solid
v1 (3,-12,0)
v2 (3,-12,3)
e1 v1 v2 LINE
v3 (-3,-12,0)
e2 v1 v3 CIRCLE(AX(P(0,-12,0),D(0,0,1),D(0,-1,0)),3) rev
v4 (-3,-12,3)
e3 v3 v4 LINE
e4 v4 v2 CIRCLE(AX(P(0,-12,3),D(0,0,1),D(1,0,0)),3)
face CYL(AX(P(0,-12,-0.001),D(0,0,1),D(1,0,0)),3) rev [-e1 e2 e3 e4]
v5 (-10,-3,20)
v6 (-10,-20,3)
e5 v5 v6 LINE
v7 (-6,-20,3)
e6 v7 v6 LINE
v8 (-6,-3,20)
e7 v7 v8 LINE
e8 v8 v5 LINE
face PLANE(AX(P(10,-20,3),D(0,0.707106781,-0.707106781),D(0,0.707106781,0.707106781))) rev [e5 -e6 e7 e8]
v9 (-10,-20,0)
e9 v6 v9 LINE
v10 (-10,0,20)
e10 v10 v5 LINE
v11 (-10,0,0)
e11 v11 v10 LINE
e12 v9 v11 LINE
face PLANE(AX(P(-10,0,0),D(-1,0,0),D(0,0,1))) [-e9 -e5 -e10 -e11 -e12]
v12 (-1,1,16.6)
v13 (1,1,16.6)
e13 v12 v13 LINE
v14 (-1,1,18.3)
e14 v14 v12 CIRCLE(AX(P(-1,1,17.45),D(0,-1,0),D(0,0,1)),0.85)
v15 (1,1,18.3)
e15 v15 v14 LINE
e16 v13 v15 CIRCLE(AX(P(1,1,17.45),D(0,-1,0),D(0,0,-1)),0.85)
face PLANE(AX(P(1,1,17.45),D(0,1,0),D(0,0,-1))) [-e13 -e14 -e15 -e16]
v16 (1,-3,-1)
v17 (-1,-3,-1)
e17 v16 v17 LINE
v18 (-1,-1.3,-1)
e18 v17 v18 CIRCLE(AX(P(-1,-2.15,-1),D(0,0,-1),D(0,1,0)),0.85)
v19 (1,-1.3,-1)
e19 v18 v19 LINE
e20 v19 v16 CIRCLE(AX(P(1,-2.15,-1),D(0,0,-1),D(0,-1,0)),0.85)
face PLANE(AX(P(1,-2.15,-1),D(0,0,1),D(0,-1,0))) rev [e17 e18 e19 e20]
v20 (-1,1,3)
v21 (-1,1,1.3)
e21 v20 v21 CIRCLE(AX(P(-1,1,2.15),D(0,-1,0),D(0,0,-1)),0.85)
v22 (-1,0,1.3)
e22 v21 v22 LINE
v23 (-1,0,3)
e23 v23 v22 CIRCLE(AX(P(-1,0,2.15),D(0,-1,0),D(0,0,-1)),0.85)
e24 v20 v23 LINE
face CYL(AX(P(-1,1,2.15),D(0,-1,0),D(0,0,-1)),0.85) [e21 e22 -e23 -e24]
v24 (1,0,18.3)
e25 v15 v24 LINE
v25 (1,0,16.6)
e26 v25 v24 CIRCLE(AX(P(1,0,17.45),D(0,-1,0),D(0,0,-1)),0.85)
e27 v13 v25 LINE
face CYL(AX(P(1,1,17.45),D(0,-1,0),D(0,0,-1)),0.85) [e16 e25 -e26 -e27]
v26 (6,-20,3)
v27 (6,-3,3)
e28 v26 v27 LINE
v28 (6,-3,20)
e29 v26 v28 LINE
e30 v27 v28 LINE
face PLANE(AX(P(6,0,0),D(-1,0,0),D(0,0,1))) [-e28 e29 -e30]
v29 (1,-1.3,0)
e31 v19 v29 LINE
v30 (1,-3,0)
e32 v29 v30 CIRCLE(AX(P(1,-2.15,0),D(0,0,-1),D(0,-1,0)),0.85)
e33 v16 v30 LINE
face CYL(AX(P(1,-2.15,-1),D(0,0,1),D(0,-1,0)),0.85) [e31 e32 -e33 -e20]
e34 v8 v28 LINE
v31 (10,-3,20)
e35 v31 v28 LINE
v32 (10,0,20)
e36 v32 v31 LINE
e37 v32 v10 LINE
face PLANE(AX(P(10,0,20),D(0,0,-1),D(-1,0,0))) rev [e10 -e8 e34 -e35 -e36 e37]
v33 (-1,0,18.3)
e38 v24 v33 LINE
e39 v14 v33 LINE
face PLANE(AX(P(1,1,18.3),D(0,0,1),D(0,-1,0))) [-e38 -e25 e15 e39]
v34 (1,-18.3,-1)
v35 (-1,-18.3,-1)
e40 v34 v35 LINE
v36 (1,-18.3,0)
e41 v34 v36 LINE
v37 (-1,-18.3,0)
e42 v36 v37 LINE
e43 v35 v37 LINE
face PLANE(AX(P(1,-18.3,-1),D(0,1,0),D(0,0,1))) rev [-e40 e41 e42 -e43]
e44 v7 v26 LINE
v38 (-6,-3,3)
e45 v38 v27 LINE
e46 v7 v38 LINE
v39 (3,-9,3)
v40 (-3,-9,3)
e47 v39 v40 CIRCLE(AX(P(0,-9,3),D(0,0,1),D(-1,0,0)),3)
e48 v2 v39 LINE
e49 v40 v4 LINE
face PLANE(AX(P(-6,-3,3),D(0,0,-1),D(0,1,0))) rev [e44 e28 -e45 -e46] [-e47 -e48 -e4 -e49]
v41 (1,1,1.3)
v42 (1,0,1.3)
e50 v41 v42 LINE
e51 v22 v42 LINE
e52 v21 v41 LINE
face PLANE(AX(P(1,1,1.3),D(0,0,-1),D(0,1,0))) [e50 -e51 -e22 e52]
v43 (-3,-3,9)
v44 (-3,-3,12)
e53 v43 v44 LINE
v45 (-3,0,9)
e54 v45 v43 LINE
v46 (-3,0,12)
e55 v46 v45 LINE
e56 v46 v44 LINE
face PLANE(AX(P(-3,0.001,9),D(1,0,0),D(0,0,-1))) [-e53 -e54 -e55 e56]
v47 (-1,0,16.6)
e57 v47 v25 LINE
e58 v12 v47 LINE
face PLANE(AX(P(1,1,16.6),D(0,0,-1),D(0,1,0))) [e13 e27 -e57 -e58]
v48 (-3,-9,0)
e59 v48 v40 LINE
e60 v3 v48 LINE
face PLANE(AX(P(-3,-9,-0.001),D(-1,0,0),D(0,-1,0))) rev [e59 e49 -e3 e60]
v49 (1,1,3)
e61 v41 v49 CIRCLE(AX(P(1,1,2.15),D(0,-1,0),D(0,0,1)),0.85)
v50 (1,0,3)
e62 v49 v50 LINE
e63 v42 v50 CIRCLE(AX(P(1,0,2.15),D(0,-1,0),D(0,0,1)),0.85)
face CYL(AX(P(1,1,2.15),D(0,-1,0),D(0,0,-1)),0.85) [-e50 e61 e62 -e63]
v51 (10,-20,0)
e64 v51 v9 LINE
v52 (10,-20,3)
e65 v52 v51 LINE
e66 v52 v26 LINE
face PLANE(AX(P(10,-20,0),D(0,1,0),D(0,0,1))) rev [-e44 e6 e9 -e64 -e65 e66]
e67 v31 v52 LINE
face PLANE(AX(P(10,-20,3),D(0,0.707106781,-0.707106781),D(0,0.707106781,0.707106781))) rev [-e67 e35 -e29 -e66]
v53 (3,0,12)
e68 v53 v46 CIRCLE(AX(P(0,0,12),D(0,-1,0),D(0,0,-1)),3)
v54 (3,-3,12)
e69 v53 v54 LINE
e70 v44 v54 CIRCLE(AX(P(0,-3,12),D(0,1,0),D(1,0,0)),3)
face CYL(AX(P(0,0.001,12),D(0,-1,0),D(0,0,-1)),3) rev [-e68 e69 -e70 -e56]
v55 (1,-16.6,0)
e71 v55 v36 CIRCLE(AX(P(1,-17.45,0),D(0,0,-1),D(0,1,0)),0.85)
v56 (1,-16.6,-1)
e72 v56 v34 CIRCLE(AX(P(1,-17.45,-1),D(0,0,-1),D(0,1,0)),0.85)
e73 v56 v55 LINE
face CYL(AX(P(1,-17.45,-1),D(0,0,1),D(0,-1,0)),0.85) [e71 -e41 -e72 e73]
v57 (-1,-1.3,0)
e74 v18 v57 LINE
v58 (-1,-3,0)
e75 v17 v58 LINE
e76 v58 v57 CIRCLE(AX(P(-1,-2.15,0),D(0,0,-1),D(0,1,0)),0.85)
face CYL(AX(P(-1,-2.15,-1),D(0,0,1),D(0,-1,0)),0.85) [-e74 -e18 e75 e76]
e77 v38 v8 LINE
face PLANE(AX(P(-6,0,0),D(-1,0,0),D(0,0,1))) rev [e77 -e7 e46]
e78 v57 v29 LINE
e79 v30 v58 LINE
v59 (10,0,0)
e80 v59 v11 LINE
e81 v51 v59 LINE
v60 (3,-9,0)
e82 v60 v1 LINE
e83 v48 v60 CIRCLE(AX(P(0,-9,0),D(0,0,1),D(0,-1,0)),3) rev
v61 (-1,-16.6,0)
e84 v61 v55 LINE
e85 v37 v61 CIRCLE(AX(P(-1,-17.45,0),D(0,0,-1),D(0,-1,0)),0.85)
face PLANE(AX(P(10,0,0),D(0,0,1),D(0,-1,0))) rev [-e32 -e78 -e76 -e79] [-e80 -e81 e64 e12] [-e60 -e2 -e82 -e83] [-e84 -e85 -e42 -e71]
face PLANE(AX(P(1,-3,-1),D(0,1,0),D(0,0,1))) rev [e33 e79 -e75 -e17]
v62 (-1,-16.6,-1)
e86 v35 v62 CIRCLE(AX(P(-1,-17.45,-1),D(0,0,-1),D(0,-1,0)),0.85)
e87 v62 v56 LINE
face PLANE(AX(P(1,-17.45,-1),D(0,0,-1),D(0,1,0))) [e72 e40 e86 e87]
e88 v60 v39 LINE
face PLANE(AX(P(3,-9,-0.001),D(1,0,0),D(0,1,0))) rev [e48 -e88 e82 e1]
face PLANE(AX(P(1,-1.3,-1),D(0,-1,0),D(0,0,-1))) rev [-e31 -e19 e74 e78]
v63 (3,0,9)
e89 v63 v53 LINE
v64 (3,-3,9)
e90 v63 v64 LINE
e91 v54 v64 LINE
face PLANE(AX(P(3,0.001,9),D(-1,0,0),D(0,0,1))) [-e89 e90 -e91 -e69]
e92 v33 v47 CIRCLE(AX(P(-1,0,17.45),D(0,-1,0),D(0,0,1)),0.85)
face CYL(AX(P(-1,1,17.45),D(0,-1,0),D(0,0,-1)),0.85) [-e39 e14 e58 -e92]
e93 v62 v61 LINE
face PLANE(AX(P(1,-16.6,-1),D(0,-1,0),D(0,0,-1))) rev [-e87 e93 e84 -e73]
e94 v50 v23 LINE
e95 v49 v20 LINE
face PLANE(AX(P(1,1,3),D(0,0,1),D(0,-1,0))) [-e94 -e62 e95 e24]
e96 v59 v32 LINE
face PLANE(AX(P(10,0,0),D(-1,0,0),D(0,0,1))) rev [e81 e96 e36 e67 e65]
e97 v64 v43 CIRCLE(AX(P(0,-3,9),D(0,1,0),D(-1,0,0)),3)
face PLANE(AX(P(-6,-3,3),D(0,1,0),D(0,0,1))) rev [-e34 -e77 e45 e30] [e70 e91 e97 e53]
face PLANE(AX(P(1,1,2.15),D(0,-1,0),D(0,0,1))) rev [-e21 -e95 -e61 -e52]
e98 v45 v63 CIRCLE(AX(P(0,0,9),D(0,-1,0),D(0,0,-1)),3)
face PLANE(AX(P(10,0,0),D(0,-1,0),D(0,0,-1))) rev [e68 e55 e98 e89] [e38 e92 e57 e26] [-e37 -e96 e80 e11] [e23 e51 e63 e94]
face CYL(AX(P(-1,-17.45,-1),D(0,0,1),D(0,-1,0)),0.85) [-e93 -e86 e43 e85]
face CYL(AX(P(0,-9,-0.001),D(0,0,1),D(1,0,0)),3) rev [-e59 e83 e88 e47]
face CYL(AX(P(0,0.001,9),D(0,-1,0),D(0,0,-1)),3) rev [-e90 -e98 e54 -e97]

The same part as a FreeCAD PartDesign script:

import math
import FreeCAD as App
import Part
import Sketcher


def add_polygon(sketch, points):
    """Adds a closed chain of lines whose ends are joined by coincident constraints."""
    first, n = sketch.GeometryCount, len(points)
    for a, b in zip(points, points[1:] + points[:1]):
        sketch.addGeometry(Part.LineSegment(App.Vector(*a, 0), App.Vector(*b, 0)), False)
    for i in range(n):
        sketch.addConstraint(Sketcher.Constraint("Coincident", first + i, 2, first + (i + 1) % n, 1))

doc = App.newDocument("Part")
body = doc.addObject("PartDesign::Body", "Body")

# Sketch on YZ plane
sketch1 = doc.addObject("Sketcher::SketchObject", "Sketch")
body.addObject(sketch1)
sketch1.AttachmentSupport = (doc.YZ_Plane, [""])
sketch1.MapMode = "FlatFace"
add_polygon(sketch1, [(0, 0), (0, 20), (-3, 20), (-20, 3), (-20, 0)])  # lines 0-4
sketch1.addConstraint([
    Sketcher.Constraint("Vertical", 0),
    Sketcher.Constraint("Horizontal", 1),
    Sketcher.Constraint("Vertical", 3),
    Sketcher.Constraint("Horizontal", 4),
    Sketcher.Constraint("Coincident", 4, 2, -1, 1),
    Sketcher.Constraint("Equal", 4, 0),
    Sketcher.Constraint("Equal", 1, 3),
    Sketcher.Constraint("DistanceX", 1, 2, 1, 1, 3.0),
    Sketcher.Constraint("DistanceX", 4, 1, 4, 2, 20.0),
])
pad1 = doc.addObject("PartDesign::Pad", "Pad")
body.addObject(pad1)
pad1.Profile = sketch1
pad1.Length = 20
pad1.Midplane = True

# Sketch on YZ plane
sketch2 = doc.addObject("Sketcher::SketchObject", "Sketch001")
body.addObject(sketch2)
sketch2.AttachmentSupport = (doc.YZ_Plane, [""])
sketch2.MapMode = "FlatFace"
add_polygon(sketch2, [(-3, 20), (-20, 20), (-20, 3), (-3, 3)])  # lines 0-3
sketch2.addConstraint([
    Sketcher.Constraint("Horizontal", 0),
    Sketcher.Constraint("Vertical", 1),
    Sketcher.Constraint("Horizontal", 2),
    Sketcher.Constraint("Vertical", 3),
    Sketcher.Constraint("Equal", 2, 1),
    Sketcher.Constraint("DistanceX", 0, 2, 0, 1, 17.0),
    Sketcher.Constraint("DistanceX", 0, 2, -1, 1, 20.0),
    Sketcher.Constraint("DistanceY", -1, 1, 0, 2, 20.0),
])
pocket1 = doc.addObject("PartDesign::Pocket", "Pocket")
body.addObject(pocket1)
pocket1.Profile = sketch2
pocket1.Length = 12
pocket1.Midplane = True

# Sketch on XY plane
sketch3 = doc.addObject("Sketcher::SketchObject", "Sketch002")
body.addObject(sketch3)
sketch3.AttachmentSupport = (doc.XY_Plane, [""])
sketch3.MapMode = "FlatFace"
sketch3.AttachmentOffset = App.Placement(App.Vector(0, 0, 3), App.Rotation())
sketch3.addGeometry([
    Part.LineSegment(App.Vector(-3, -9, 0), App.Vector(-3, -12, 0)),
    Part.ArcOfCircle(Part.Circle(App.Vector(0, -12, 0), App.Vector(0, 0, 1), 3), math.radians(180), math.radians(360)),
    Part.LineSegment(App.Vector(3, -12, 0), App.Vector(3, -9, 0)),
    Part.ArcOfCircle(Part.Circle(App.Vector(0, -9, 0), App.Vector(0, 0, 1), 3), math.radians(0), math.radians(180)),
], False)
sketch3.addConstraint([
    Sketcher.Constraint("Tangent", 0, 2, 1, 1),
    Sketcher.Constraint("Tangent", 1, 2, 2, 1),
    Sketcher.Constraint("Tangent", 2, 2, 3, 1),
    Sketcher.Constraint("Tangent", 3, 2, 0, 1),
    Sketcher.Constraint("Vertical", 0),
    Sketcher.Constraint("Vertical", 2),
    Sketcher.Constraint("PointOnObject", 1, 3, -2),
    Sketcher.Constraint("Radius", 1, 3.0),
    Sketcher.Constraint("DistanceY", 0, 2, 0, 1, 3.0),
    Sketcher.Constraint("DistanceY", 1, 3, -1, 1, 12.0),
])
pocket2 = doc.addObject("PartDesign::Pocket", "Pocket001")
body.addObject(pocket2)
pocket2.Profile = sketch3
pocket2.Length = 3

# Sketch on XY plane
sketch4 = doc.addObject("Sketcher::SketchObject", "Sketch003")
body.addObject(sketch4)
sketch4.AttachmentSupport = (doc.XY_Plane, [""])
sketch4.MapMode = "FlatFace"
sketch4.addGeometry([
    Part.LineSegment(App.Vector(1, -3, 0), App.Vector(-1, -3, 0)),  # 0
    Part.ArcOfCircle(Part.Circle(App.Vector(-1, -2.1, 0), App.Vector(0, 0, 1), 0.8), math.radians(90), math.radians(270)),  # 1
    Part.LineSegment(App.Vector(-1, -1.3, 0), App.Vector(1, -1.3, 0)),  # 2
    Part.ArcOfCircle(Part.Circle(App.Vector(1, -2.1, 0), App.Vector(0, 0, 1), 0.8), math.radians(-90), math.radians(90)),  # 3
    Part.LineSegment(App.Vector(1, -18.3, 0), App.Vector(-1, -18.3, 0)),  # 4
    Part.ArcOfCircle(Part.Circle(App.Vector(-1, -17.4, 0), App.Vector(0, 0, 1), 0.8), math.radians(90), math.radians(270)),  # 5
    Part.LineSegment(App.Vector(-1, -16.6, 0), App.Vector(1, -16.6, 0)),  # 6
    Part.ArcOfCircle(Part.Circle(App.Vector(1, -17.4, 0), App.Vector(0, 0, 1), 0.8), math.radians(-90), math.radians(90)),  # 7
], False)
sketch4.addConstraint([
    Sketcher.Constraint("Tangent", 0, 2, 1, 2),
    Sketcher.Constraint("Tangent", 1, 1, 2, 1),
    Sketcher.Constraint("Tangent", 2, 2, 3, 2),
    Sketcher.Constraint("Tangent", 3, 1, 0, 1),
    Sketcher.Constraint("Tangent", 4, 2, 5, 2),
    Sketcher.Constraint("Tangent", 5, 1, 6, 1),
    Sketcher.Constraint("Tangent", 6, 2, 7, 2),
    Sketcher.Constraint("Tangent", 7, 1, 4, 1),
    Sketcher.Constraint("Horizontal", 0),
    Sketcher.Constraint("Horizontal", 2),
    Sketcher.Constraint("Horizontal", 4),
    Sketcher.Constraint("Horizontal", 6),
    Sketcher.Constraint("Equal", 3, 5),
    Sketcher.Constraint("Vertical", 1, 3, 5, 3),
    Sketcher.Constraint("Vertical", 3, 3, 7, 3),
    Sketcher.Constraint("DistanceX", 0, 2, 0, 1, 2.0),
    Sketcher.Constraint("Radius", 1, 0.85),
    Sketcher.Constraint("DistanceX", 1, 3, -1, 1, 1.0),
    Sketcher.Constraint("DistanceY", 0, 2, -1, 1, 3.0),
    Sketcher.Constraint("DistanceY", 4, 2, -1, 1, 18.3),
])
pad2 = doc.addObject("PartDesign::Pad", "Pad001")
body.addObject(pad2)
pad2.Profile = sketch4
pad2.Length = 1
pad2.Reversed = True
doc.recompute()

datumplane = doc.addObject("PartDesign::Plane", "DatumPlane")
body.addObject(datumplane)
datumplane.Placement = App.Placement(App.Vector(0, 0, 0), App.Rotation(App.Vector(0, 0.707106781, -0.707106781), App.Vector(-1, 0, 0), App.Vector(0, 0.707106781, 0.707106781), "ZXY"))
mirrored = doc.addObject("PartDesign::Mirrored", "Mirrored")
body.addObject(mirrored)
mirrored.Originals = [pocket2, pad2]
mirrored.MirrorPlane = (datumplane, [""])
body.Tip = mirrored

doc.recompute()
